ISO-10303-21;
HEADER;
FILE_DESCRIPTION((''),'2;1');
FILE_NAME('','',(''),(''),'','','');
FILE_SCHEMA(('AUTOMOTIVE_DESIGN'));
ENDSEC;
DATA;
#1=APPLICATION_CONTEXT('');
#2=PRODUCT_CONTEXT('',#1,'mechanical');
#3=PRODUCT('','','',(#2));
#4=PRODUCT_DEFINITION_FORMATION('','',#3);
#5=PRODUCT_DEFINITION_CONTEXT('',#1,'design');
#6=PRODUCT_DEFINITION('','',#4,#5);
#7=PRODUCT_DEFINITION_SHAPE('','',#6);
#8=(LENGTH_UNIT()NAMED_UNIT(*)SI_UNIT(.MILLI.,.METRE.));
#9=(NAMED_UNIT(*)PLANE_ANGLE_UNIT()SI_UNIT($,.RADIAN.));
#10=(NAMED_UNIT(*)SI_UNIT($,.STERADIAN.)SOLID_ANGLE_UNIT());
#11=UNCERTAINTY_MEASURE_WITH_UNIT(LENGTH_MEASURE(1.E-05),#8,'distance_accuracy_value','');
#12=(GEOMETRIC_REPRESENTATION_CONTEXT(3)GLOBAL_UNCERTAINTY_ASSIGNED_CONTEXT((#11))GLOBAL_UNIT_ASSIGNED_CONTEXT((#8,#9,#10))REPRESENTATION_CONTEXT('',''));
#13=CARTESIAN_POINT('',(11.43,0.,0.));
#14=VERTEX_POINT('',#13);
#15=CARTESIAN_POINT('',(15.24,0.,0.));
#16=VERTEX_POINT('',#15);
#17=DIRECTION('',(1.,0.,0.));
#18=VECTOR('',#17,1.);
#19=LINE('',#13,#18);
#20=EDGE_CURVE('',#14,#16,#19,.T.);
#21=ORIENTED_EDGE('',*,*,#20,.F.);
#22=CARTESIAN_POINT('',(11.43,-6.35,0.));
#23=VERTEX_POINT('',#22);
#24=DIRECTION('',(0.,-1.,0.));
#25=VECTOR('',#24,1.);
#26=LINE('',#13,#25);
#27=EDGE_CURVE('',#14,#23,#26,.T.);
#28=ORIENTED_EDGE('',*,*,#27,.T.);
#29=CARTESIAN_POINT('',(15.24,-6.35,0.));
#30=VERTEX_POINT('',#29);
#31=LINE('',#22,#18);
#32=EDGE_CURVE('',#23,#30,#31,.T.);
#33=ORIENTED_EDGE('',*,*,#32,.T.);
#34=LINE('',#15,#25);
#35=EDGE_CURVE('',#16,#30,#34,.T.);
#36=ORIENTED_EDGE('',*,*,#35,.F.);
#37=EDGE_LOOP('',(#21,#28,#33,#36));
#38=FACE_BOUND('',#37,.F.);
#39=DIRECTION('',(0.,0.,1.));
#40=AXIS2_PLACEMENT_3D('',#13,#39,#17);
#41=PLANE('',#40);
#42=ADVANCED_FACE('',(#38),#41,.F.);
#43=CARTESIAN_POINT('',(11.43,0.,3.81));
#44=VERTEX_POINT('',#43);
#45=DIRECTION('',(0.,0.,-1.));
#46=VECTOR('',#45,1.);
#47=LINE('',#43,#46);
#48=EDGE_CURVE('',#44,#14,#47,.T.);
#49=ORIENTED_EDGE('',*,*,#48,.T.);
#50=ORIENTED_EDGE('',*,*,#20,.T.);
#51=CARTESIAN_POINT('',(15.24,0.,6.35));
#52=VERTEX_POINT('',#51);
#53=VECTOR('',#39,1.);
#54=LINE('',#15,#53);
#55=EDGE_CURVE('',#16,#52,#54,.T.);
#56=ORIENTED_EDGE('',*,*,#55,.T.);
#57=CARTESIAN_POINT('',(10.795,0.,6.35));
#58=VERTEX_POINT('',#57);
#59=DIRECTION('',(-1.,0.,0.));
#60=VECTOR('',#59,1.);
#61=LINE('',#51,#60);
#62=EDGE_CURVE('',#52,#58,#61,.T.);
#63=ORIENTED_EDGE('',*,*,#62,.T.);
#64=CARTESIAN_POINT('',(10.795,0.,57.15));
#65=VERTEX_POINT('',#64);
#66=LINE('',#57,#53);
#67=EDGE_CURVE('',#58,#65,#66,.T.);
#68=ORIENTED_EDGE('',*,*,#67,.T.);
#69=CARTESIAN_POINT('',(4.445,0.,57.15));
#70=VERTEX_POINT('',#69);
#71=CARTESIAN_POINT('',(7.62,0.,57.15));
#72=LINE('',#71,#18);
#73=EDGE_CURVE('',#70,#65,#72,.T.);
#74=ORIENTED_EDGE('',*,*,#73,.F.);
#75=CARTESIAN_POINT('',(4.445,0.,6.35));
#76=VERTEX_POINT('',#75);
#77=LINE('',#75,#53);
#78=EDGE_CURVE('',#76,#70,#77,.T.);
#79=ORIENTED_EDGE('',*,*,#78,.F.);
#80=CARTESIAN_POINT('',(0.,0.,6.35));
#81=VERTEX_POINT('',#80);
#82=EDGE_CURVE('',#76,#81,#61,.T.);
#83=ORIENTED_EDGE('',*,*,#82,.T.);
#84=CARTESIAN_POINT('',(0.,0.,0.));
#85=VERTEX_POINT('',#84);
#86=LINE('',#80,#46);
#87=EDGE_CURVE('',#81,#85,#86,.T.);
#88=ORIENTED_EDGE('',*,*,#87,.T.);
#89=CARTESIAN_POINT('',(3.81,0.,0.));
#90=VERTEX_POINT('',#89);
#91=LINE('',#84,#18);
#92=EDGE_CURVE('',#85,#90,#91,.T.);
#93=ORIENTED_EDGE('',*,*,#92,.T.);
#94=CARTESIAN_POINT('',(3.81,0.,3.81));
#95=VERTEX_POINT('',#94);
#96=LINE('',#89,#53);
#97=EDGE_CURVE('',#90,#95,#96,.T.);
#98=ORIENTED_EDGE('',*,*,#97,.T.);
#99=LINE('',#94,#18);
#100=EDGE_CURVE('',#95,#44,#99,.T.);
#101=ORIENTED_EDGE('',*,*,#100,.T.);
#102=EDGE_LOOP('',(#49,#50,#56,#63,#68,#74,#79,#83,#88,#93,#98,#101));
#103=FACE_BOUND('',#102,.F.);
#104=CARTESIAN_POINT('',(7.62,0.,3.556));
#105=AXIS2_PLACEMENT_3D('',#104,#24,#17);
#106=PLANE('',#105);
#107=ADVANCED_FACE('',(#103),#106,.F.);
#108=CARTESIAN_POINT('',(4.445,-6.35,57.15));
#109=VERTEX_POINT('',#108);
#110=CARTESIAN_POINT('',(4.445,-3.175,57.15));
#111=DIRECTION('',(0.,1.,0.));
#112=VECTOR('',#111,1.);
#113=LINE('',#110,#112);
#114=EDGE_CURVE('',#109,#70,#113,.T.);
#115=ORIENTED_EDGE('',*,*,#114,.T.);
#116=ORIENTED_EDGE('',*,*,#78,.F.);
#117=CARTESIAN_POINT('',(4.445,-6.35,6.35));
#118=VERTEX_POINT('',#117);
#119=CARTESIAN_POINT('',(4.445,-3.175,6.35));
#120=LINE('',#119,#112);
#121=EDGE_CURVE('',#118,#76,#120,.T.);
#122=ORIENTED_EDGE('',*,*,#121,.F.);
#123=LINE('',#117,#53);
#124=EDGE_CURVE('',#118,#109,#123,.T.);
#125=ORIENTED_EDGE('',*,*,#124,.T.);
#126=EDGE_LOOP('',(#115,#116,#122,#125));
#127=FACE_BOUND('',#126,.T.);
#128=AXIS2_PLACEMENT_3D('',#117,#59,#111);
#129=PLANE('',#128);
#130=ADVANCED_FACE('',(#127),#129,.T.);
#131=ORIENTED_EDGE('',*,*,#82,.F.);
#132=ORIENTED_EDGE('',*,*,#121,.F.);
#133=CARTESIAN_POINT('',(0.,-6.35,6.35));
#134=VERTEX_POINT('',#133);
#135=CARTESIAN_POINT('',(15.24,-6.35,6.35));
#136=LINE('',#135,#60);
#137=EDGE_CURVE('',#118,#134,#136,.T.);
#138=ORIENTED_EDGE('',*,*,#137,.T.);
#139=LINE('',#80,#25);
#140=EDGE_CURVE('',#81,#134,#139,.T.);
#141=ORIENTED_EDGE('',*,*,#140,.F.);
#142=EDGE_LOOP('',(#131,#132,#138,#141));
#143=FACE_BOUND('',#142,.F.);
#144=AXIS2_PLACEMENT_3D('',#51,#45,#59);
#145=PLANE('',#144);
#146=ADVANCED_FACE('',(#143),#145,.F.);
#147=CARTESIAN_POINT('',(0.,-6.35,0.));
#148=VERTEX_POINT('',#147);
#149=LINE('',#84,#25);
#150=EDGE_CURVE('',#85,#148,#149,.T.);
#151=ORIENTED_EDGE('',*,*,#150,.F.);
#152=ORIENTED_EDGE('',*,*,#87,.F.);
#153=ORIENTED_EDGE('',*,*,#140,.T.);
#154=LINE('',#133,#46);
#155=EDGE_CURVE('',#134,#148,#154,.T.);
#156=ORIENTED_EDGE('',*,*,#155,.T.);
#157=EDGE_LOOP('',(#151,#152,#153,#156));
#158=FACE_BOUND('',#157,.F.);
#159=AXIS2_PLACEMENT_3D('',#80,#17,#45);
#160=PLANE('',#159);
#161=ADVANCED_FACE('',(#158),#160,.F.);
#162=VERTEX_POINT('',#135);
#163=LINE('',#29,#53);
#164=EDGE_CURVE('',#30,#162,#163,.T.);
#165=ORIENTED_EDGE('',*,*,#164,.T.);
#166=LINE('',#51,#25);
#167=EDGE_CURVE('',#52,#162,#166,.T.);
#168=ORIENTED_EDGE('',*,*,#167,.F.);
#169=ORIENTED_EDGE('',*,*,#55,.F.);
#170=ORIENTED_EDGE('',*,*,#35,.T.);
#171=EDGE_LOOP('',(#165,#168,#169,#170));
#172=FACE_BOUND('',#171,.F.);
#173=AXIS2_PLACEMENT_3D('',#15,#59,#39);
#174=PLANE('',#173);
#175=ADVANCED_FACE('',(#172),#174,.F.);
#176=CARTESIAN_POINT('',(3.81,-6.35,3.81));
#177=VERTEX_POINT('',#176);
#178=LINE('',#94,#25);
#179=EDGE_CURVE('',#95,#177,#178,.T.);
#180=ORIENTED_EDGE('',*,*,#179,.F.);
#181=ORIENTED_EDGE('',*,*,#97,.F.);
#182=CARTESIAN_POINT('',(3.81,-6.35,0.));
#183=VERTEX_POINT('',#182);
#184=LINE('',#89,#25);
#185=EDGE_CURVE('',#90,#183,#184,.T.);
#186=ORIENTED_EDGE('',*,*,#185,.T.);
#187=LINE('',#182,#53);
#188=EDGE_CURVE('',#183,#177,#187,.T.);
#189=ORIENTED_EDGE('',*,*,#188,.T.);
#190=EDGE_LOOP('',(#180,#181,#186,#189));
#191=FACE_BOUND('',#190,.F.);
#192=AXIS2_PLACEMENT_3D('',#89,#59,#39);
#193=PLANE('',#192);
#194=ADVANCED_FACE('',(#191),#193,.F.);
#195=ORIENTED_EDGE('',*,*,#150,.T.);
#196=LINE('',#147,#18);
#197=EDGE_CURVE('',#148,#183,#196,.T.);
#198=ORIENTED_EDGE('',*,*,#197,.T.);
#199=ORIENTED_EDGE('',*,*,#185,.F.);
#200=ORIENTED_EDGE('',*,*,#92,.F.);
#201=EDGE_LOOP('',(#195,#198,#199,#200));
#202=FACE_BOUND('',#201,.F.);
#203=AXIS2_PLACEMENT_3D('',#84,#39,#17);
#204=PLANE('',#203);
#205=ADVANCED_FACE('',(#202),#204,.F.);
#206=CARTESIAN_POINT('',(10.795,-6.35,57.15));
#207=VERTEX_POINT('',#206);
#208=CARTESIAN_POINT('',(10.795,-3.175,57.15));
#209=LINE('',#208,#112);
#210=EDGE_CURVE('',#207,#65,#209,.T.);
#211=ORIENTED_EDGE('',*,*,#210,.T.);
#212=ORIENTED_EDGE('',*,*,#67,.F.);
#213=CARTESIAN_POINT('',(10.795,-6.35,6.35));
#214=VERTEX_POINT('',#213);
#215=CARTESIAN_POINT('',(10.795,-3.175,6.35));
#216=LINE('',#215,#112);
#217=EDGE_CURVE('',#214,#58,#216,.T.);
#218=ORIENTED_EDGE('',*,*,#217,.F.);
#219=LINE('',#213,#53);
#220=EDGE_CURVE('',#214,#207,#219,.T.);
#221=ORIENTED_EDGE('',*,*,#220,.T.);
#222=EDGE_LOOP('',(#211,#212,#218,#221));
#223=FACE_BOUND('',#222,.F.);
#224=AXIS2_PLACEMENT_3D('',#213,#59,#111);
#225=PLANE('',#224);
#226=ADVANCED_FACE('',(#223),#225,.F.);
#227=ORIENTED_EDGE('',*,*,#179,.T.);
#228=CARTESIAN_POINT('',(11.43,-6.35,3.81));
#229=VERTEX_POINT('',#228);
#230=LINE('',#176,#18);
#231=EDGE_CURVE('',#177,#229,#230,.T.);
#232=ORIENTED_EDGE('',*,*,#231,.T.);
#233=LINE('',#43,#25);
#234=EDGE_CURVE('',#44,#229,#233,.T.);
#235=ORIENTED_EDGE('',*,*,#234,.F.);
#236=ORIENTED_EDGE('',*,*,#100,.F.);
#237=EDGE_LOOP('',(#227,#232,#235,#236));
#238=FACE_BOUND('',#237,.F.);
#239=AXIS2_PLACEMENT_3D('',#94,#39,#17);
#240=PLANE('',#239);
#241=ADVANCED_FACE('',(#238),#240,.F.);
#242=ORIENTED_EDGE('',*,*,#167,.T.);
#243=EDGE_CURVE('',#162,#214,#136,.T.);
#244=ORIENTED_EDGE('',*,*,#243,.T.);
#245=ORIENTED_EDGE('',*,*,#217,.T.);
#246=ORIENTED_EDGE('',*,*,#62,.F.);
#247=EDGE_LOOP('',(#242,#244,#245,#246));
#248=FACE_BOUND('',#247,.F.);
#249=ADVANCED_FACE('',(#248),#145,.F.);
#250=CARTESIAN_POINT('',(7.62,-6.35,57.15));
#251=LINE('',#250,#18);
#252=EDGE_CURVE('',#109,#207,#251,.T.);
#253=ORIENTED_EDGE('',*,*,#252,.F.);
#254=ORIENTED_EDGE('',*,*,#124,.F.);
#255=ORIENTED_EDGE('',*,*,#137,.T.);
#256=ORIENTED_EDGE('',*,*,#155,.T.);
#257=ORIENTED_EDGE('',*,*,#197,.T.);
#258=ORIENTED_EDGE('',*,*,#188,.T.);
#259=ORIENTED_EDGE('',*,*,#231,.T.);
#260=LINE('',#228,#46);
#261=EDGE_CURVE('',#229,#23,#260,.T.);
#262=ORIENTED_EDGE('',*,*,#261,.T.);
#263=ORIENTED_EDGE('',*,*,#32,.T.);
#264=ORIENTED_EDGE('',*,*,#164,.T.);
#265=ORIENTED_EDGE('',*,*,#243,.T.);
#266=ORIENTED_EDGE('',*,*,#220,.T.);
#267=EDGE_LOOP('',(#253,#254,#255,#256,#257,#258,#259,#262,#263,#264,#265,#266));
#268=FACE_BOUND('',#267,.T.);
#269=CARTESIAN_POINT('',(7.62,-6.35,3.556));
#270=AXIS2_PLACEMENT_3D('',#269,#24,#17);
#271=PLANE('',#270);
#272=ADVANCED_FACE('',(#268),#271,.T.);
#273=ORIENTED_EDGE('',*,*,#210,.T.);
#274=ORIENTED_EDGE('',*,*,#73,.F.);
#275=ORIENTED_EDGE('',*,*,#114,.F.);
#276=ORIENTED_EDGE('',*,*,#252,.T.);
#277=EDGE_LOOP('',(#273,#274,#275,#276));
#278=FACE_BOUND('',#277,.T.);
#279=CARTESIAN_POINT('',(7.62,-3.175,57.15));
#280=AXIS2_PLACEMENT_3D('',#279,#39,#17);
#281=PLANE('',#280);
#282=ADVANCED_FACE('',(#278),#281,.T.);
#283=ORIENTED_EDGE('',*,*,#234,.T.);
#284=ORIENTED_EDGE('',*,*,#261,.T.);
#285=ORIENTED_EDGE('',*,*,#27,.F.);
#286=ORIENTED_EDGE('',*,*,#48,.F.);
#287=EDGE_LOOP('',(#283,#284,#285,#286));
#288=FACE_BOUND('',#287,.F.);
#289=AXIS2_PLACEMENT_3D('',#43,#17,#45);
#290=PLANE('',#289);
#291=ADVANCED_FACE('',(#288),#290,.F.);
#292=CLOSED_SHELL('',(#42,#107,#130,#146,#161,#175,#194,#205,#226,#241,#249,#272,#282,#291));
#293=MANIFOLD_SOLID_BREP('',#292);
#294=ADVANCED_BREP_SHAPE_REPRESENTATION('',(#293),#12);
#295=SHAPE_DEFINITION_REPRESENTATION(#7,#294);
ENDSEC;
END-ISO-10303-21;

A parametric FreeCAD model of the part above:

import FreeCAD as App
import Part
import Sketcher
from FreeCAD import Vector
Q = App.Units.Quantity


def add_polygon(sketch, points):
    """Adds a closed chain of lines whose ends are joined by coincident constraints."""
    first, n = sketch.GeometryCount, len(points)
    for a, b in zip(points, points[1:] + points[:1]):
        sketch.addGeometry(Part.LineSegment(App.Vector(*a, 0), App.Vector(*b, 0)), False)
    for i in range(n):
        sketch.addConstraint(Sketcher.Constraint("Coincident", first + i, 2, first + (i + 1) % n, 1))

doc = App.newDocument("Part")
body = doc.addObject("PartDesign::Body", "Body")

sketch1 = body.newObject("Sketcher::SketchObject", "Sketch")
sketch1.AttachmentSupport = (doc.getObject("XZ_Plane"), [""])
sketch1.MapMode = "FlatFace"
add_polygon(sketch1, [(0, 6.35), (0, 0), (3.81, 0), (3.81, 3.81), (11.43, 3.81), (11.43, 0), (15.24, 0), (15.24, 6.35)])
sketch1.addConstraint([
    Sketcher.Constraint("Vertical", 0),
    Sketcher.Constraint("Horizontal", 1),
    Sketcher.Constraint("Vertical", 2),
    Sketcher.Constraint("Horizontal", 3),
    Sketcher.Constraint("Vertical", 4),
    Sketcher.Constraint("Horizontal", 5),
    Sketcher.Constraint("Vertical", 6),
    Sketcher.Constraint("Horizontal", 7),
    Sketcher.Constraint("Coincident", 0, 2, -1, 1),
    Sketcher.Constraint("PointOnObject", 4, 2, -1),
    Sketcher.Constraint("Equal", 1, 5),
    Sketcher.Constraint("Equal", 5, 2),
    Sketcher.Constraint("DistanceX", 3, 1, 3, 2, Q("0.3 in")),
    Sketcher.Constraint("DistanceX", 7, 2, 7, 1, Q("0.6 in")),
    Sketcher.Constraint("DistanceY", 0, 2, 0, 1, Q("0.25 in")),
])
pad1 = body.newObject("PartDesign::Pad", "Pad")
pad1.Profile = sketch1
pad1.Length = Q("0.25 in")

sketch2 = body.newObject("Sketcher::SketchObject", "Sketch001")
sketch2.AttachmentSupport = (doc.getObject("XY_Plane"), [""])
sketch2.MapMode = "FlatFace"
sketch2.AttachmentOffset = App.Placement(Vector(0, 0, 0.25 * 25.4), App.Rotation())
add_polygon(sketch2, [(4.445, 0), (4.445, -6.35), (10.795, -6.35), (10.795, 0)])
sketch2.addConstraint([
    Sketcher.Constraint("Vertical", 0),
    Sketcher.Constraint("Horizontal", 1),
    Sketcher.Constraint("Vertical", 2),
    Sketcher.Constraint("Horizontal", 3),
    Sketcher.Constraint("PointOnObject", 2, 2, -1),
    Sketcher.Constraint("Equal", 3, 0),
    Sketcher.Constraint("DistanceX", 1, 1, 1, 2, Q("0.25 in")),
    Sketcher.Constraint("DistanceX", -1, 1, 0, 2, Q("0.175 in")),
])
pad2 = body.newObject("PartDesign::Pad", "Pad001")
pad2.Profile = sketch2
pad2.Length = Q("2 in")

doc.recompute()
